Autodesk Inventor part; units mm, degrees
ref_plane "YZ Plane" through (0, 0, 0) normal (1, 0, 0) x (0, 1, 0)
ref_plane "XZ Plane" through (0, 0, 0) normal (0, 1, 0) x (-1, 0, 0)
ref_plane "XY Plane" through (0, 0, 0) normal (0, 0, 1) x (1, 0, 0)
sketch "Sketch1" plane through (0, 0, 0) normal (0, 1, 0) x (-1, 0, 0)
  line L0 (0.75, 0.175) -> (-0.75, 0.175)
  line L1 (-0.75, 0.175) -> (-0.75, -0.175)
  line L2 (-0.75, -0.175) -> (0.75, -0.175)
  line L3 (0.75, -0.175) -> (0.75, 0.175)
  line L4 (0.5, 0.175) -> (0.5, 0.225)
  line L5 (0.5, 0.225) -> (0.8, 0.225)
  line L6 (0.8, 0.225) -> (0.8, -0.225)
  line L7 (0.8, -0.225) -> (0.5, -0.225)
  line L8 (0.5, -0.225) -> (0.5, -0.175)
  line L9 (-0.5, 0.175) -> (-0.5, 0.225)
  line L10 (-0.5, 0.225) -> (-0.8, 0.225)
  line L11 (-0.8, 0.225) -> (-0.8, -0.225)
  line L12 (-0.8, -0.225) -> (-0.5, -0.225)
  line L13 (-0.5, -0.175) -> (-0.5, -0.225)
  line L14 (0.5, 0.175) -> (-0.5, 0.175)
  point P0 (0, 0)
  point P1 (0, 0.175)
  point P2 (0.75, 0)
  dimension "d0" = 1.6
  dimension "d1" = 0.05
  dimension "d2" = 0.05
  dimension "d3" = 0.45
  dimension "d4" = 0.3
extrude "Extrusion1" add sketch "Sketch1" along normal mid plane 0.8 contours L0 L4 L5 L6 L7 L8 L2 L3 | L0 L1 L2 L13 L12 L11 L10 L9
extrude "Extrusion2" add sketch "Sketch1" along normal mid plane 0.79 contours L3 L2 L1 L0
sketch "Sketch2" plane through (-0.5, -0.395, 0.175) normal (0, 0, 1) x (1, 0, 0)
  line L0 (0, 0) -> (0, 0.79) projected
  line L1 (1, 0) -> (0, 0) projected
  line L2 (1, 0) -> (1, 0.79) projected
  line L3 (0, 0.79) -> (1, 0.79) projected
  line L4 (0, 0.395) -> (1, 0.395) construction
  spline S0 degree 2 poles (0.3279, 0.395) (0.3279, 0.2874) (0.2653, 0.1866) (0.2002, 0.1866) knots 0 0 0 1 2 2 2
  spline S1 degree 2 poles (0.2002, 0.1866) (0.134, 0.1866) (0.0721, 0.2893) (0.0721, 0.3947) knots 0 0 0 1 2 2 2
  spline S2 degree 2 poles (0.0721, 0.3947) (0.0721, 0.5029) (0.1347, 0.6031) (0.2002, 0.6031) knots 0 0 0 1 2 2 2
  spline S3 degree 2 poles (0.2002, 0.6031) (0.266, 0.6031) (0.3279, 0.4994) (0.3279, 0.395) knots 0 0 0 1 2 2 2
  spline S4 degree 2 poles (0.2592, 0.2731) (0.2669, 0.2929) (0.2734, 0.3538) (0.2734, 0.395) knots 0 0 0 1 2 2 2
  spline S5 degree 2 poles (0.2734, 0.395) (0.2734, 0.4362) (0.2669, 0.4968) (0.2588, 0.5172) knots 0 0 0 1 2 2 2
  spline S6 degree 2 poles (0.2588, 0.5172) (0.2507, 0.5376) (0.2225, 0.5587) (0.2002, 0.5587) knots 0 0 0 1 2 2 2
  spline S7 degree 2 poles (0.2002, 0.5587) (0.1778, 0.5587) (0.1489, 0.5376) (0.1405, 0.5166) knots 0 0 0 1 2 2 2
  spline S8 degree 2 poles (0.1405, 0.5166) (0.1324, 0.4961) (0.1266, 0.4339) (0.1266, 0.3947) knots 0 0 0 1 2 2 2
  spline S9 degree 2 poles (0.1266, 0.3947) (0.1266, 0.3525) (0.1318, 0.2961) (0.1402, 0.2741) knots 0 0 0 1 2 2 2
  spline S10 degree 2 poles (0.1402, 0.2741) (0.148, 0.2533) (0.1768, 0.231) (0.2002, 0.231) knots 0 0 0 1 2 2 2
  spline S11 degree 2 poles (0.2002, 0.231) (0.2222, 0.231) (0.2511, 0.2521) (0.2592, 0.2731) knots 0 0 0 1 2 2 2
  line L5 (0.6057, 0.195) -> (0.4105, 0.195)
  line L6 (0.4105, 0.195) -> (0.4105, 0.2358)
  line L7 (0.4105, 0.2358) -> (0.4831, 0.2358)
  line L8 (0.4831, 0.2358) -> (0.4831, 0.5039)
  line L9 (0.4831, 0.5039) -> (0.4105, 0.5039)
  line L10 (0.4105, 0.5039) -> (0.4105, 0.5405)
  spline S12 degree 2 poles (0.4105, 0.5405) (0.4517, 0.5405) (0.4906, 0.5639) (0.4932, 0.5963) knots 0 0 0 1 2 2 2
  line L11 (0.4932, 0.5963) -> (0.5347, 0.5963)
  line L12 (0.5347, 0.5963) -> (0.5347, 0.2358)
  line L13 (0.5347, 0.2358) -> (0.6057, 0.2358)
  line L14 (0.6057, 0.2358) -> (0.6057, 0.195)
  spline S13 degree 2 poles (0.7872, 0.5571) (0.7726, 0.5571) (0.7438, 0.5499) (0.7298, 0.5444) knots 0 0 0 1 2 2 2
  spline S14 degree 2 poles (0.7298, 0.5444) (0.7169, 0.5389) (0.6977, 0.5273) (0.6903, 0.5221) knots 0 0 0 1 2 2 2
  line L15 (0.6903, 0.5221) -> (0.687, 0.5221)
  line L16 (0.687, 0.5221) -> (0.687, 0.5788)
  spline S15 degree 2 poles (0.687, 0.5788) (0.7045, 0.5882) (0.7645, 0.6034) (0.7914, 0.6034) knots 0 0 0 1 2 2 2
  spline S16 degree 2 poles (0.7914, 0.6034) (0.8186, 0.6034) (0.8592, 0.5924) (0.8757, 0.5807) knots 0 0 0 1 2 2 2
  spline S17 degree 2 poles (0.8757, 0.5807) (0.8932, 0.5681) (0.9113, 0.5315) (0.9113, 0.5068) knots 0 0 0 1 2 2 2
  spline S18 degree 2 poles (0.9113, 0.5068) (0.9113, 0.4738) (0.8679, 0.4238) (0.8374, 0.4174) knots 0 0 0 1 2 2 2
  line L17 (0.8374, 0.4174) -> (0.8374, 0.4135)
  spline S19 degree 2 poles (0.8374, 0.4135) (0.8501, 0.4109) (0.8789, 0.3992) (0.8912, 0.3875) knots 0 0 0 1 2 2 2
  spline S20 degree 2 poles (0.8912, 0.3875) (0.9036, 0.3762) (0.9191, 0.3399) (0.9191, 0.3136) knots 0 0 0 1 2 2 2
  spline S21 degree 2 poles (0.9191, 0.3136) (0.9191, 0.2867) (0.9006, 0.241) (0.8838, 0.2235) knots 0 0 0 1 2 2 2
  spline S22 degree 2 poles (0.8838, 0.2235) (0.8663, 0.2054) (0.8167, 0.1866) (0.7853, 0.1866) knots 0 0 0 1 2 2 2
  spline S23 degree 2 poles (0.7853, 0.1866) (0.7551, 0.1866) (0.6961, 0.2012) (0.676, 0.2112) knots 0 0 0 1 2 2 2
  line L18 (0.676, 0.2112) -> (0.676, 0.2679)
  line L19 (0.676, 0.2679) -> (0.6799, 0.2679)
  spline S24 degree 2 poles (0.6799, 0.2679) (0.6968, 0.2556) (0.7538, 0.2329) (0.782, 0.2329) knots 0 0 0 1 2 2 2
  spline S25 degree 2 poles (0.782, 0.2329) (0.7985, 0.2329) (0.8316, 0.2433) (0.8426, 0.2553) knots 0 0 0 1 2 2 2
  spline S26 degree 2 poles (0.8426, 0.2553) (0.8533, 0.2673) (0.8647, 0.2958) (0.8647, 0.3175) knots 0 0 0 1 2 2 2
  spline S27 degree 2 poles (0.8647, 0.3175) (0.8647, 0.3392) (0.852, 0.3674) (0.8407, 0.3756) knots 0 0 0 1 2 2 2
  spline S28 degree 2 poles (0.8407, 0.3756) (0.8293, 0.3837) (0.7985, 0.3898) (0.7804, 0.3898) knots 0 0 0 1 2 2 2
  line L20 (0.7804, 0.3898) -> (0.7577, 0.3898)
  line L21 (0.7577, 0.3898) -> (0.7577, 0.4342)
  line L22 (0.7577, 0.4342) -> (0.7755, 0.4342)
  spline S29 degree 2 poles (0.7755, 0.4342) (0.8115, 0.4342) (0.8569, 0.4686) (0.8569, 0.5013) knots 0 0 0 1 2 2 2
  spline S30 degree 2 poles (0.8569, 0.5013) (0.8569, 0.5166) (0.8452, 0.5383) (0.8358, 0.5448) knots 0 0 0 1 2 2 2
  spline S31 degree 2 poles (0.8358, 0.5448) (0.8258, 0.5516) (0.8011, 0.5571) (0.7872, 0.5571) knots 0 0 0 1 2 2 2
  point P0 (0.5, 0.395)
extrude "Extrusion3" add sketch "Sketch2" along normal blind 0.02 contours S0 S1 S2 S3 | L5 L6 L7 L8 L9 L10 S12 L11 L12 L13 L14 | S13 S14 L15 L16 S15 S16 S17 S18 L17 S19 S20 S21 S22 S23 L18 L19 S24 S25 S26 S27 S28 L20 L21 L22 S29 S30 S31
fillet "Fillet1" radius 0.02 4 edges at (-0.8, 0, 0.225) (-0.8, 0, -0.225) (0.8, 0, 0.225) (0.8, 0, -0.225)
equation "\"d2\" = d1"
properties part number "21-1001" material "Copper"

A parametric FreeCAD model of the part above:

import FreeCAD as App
import Part
import Sketcher
from FreeCAD import Vector


def edges_at(feature, points):
    """Names of the edges that pass closest to the given points."""
    edges = feature.Shape.Edges
    near = lambda p: min(range(len(edges)), key=lambda i: edges[i].distToShape(Part.Vertex(*p))[0])
    return sorted({f"Edge{near(p) + 1}" for p in points})

doc = App.newDocument("Part")
params = doc.addObject("Spreadsheet::Sheet", "Params")
for row, (alias, value) in enumerate([
    ("sketch1_width", "0.3 mm"),
    ("sketch1_height", "0.05 mm"),
    ("sketch1_height2", "0.45 mm"),
    ("pad1_length", "0.8 mm"),
    ("sketch2_width", "1.5 mm"),
    ("sketch2_height", "0.35 mm"),
    ("pad2_length", "0.79 mm"),
    ("pad3_length", "0.02 mm"),
    ("fillet_radius", "0.02 mm"),
], start=1):
    params.set(f"A{row}", alias)
    params.set(f"B{row}", "=" + value)
    params.setAlias(f"B{row}", alias)

body = doc.addObject("PartDesign::Body", "Body")
body.AllowCompound = True

# Sketch on XZ plane
sketch1 = doc.addObject("Sketcher::SketchObject", "Sketch")
body.addObject(sketch1)
sketch1.AttachmentSupport = (doc.XZ_Plane, [""])
sketch1.MapMode = "FlatFace"
sketch1.addGeometry(Part.LineSegment(Vector(-0.5, 0.17, 0), Vector(-0.75, 0.17, 0)), False)
sketch1.addGeometry(Part.LineSegment(Vector(-0.75, 0.17, 0), Vector(-0.75, -0.17, 0)), False)
sketch1.addGeometry(Part.LineSegment(Vector(-0.75, -0.17, 0), Vector(-0.5, -0.17, 0)), False)
sketch1.addGeometry(Part.LineSegment(Vector(-0.5, -0.17, 0), Vector(-0.5, -0.23, 0)), False)
sketch1.addGeometry(Part.LineSegment(Vector(-0.5, -0.23, 0), Vector(-0.8, -0.23, 0)), False)
sketch1.addGeometry(Part.LineSegment(Vector(-0.8, -0.23, 0), Vector(-0.8, 0.23, 0)), False)
sketch1.addGeometry(Part.LineSegment(Vector(-0.8, 0.23, 0), Vector(-0.5, 0.23, 0)), False)
sketch1.addGeometry(Part.LineSegment(Vector(-0.5, 0.23, 0), Vector(-0.5, 0.17, 0)), False)
sketch1.addGeometry(Part.LineSegment(Vector(0.75, 0.17, 0), Vector(0.5, 0.17, 0)), False)
sketch1.addGeometry(Part.LineSegment(Vector(0.5, 0.17, 0), Vector(0.5, 0.23, 0)), False)
sketch1.addGeometry(Part.LineSegment(Vector(0.5, 0.23, 0), Vector(0.8, 0.23, 0)), False)
sketch1.addGeometry(Part.LineSegment(Vector(0.8, 0.23, 0), Vector(0.8, -0.23, 0)), False)
sketch1.addGeometry(Part.LineSegment(Vector(0.8, -0.23, 0), Vector(0.5, -0.23, 0)), False)
sketch1.addGeometry(Part.LineSegment(Vector(0.5, -0.23, 0), Vector(0.5, -0.17, 0)), False)
sketch1.addGeometry(Part.LineSegment(Vector(0.5, -0.17, 0), Vector(0.75, -0.17, 0)), False)
sketch1.addGeometry(Part.LineSegment(Vector(0.75, -0.17, 0), Vector(0.75, 0.17, 0)), False)
sketch1.addConstraint(Sketcher.Constraint("Coincident", 0, 2, 1, 1))
sketch1.addConstraint(Sketcher.Constraint("Coincident", 1, 2, 2, 1))
sketch1.addConstraint(Sketcher.Constraint("Coincident", 2, 2, 3, 1))
sketch1.addConstraint(Sketcher.Constraint("Coincident", 3, 2, 4, 1))
sketch1.addConstraint(Sketcher.Constraint("Coincident", 4, 2, 5, 1))
sketch1.addConstraint(Sketcher.Constraint("Coincident", 5, 2, 6, 1))
sketch1.addConstraint(Sketcher.Constraint("Coincident", 6, 2, 7, 1))
sketch1.addConstraint(Sketcher.Constraint("Coincident", 7, 2, 0, 1))
sketch1.addConstraint(Sketcher.Constraint("Coincident", 8, 2, 9, 1))
sketch1.addConstraint(Sketcher.Constraint("Coincident", 9, 2, 10, 1))
sketch1.addConstraint(Sketcher.Constraint("Coincident", 10, 2, 11, 1))
sketch1.addConstraint(Sketcher.Constraint("Coincident", 11, 2, 12, 1))
sketch1.addConstraint(Sketcher.Constraint("Coincident", 12, 2, 13, 1))
sketch1.addConstraint(Sketcher.Constraint("Coincident", 13, 2, 14, 1))
sketch1.addConstraint(Sketcher.Constraint("Coincident", 14, 2, 15, 1))
sketch1.addConstraint(Sketcher.Constraint("Coincident", 15, 2, 8, 1))
sketch1.addConstraint(Sketcher.Constraint("Horizontal", 0))
sketch1.addConstraint(Sketcher.Constraint("Vertical", 1))
sketch1.addConstraint(Sketcher.Constraint("Horizontal", 2))
sketch1.addConstraint(Sketcher.Constraint("Vertical", 3))
sketch1.addConstraint(Sketcher.Constraint("Horizontal", 4))
sketch1.addConstraint(Sketcher.Constraint("Vertical", 5))
sketch1.addConstraint(Sketcher.Constraint("Horizontal", 6))
sketch1.addConstraint(Sketcher.Constraint("Vertical", 7))
sketch1.addConstraint(Sketcher.Constraint("Horizontal", 8))
sketch1.addConstraint(Sketcher.Constraint("Vertical", 9))
sketch1.addConstraint(Sketcher.Constraint("Horizontal", 10))
sketch1.addConstraint(Sketcher.Constraint("Vertical", 11))
sketch1.addConstraint(Sketcher.Constraint("Horizontal", 12))
sketch1.addConstraint(Sketcher.Constraint("Vertical", 13))
sketch1.addConstraint(Sketcher.Constraint("Horizontal", 14))
sketch1.addConstraint(Sketcher.Constraint("Vertical", 15))
sketch1.addConstraint(Sketcher.Constraint("Symmetric", 2, 2, 8, 2, -1, 1))
sketch1.addConstraint(Sketcher.Constraint("Symmetric", 4, 2, 10, 2, -1, 1))
sketch1.addConstraint(Sketcher.Constraint("Symmetric", 6, 2, 12, 2, -1, 1))
sketch1.addConstraint(Sketcher.Constraint("Symmetric", 0, 2, 14, 2, -1, 1))
sketch1.addConstraint(Sketcher.Constraint("Symmetric", 7, 2, 8, 2, -2))
sketch1.addConstraint(Sketcher.Constraint("Horizontal", 6, 2, 9, 2))
sketch1.addConstraint(Sketcher.Constraint("DistanceX", 4, 2, 4, 1, 0.3))
sketch1.addConstraint(Sketcher.Constraint("DistanceY", 3, 2, 3, 1, 0.05))
sketch1.addConstraint(Sketcher.Constraint("DistanceY", 5, 1, 5, 2, 0.45))
sketch1.addConstraint(Sketcher.Constraint("DistanceX", 4, 2, 1, 2, 0.05))
sketch1.addConstraint(Sketcher.Constraint("DistanceX", 7, 2, 8, 2, 1.0))
sketch1.setExpression("Constraints[38]", "Params.sketch1_width")
sketch1.setExpression("Constraints[39]", "Params.sketch1_height")
sketch1.setExpression("Constraints[40]", "Params.sketch1_height2")
pad1 = doc.addObject("PartDesign::Pad", "Pad")
body.addObject(pad1)
pad1.Profile = sketch1
pad1.setExpression("Length", "Params.pad1_length")
pad1.Midplane = True

# Sketch on XZ plane
sketch2 = doc.addObject("Sketcher::SketchObject", "Sketch001")
body.addObject(sketch2)
sketch2.AttachmentSupport = (doc.XZ_Plane, [""])
sketch2.MapMode = "FlatFace"
sketch2.addGeometry(Part.LineSegment(Vector(-0.75, -0.17, 0), Vector(-0.75, 0.17, 0)), False)
sketch2.addGeometry(Part.LineSegment(Vector(-0.75, 0.17, 0), Vector(0.75, 0.17, 0)), False)
sketch2.addGeometry(Part.LineSegment(Vector(0.75, 0.17, 0), Vector(0.75, -0.17, 0)), False)
sketch2.addGeometry(Part.LineSegment(Vector(0.75, -0.17, 0), Vector(-0.75, -0.17, 0)), False)
sketch2.addConstraint(Sketcher.Constraint("Coincident", 0, 2, 1, 1))
sketch2.addConstraint(Sketcher.Constraint("Coincident", 1, 2, 2, 1))
sketch2.addConstraint(Sketcher.Constraint("Coincident", 2, 2, 3, 1))
sketch2.addConstraint(Sketcher.Constraint("Coincident", 3, 2, 0, 1))
sketch2.addConstraint(Sketcher.Constraint("Vertical", 0))
sketch2.addConstraint(Sketcher.Constraint("Horizontal", 1))
sketch2.addConstraint(Sketcher.Constraint("Vertical", 2))
sketch2.addConstraint(Sketcher.Constraint("Horizontal", 3))
sketch2.addConstraint(Sketcher.Constraint("Symmetric", 0, 2, 2, 2, -1, 1))
sketch2.addConstraint(Sketcher.Constraint("DistanceX", 1, 1, 1, 2, 1.5))
sketch2.addConstraint(Sketcher.Constraint("DistanceY", 0, 1, 0, 2, 0.35))
sketch2.setExpression("Constraints[9]", "Params.sketch2_width")
sketch2.setExpression("Constraints[10]", "Params.sketch2_height")
pad2 = doc.addObject("PartDesign::Pad", "Pad001")
body.addObject(pad2)
pad2.Profile = sketch2
pad2.setExpression("Length", "Params.pad2_length")
pad2.Midplane = True

# Sketch on XY plane
sketch3 = doc.addObject("Sketcher::SketchObject", "Sketch002")
body.addObject(sketch3)
sketch3.AttachmentSupport = (doc.XY_Plane, [""])
sketch3.MapMode = "FlatFace"
sketch3.AttachmentOffset = App.Placement(Vector(0, 0, 0.175), App.Rotation())
sketch3.addGeometry(Part.BSplineCurve([Vector(-0.1721, 0, 0), Vector(-0.1721, -0.1076, 0), Vector(-0.2347, -0.2084, 0), Vector(-0.2998, -0.2084, 0)], [3, 1, 3], [0, 1, 2], False, 2, [1, 1, 1, 1], False), False)
sketch3.addGeometry(Part.BSplineCurve([Vector(-0.2998, 0.2081, 0), Vector(-0.234, 0.2081, 0), Vector(-0.1721, 0.1044, 0), Vector(-0.1721, 0, 0)], [3, 1, 3], [0, 1, 2], False, 2, [1, 1, 1, 1], False), False)
sketch3.addGeometry(Part.BSplineCurve([Vector(-0.4279, -0.0003, 0), Vector(-0.4279, 0.1079, 0), Vector(-0.3653, 0.2081, 0), Vector(-0.2998, 0.2081, 0)], [3, 1, 3], [0, 1, 2], False, 2, [1, 1, 1, 1], False), False)
sketch3.addGeometry(Part.BSplineCurve([Vector(-0.2998, -0.2084, 0), Vector(-0.366, -0.2084, 0), Vector(-0.4279, -0.1057, 0), Vector(-0.4279, -0.0003, 0)], [3, 1, 3], [0, 1, 2], False, 2, [1, 1, 1, 1], False), False)
sketch3.addGeometry(Part.BSplineCurve([Vector(-0.2408, -0.1219, 0), Vector(-0.2331, -0.1021, 0), Vector(-0.2266, -0.0412, 0), Vector(-0.2266, 0, 0)], [3, 1, 3], [0, 1, 2], False, 2, [1, 1, 1, 1], False), False)
sketch3.addGeometry(Part.BSplineCurve([Vector(-0.2998, -0.164, 0), Vector(-0.2778, -0.164, 0), Vector(-0.2489, -0.1429, 0), Vector(-0.2408, -0.1219, 0)], [3, 1, 3], [0, 1, 2], False, 2, [1, 1, 1, 1], False), False)
sketch3.addGeometry(Part.BSplineCurve([Vector(-0.3598, -0.1209, 0), Vector(-0.352, -0.1417, 0), Vector(-0.3232, -0.164, 0), Vector(-0.2998, -0.164, 0)], [3, 1, 3], [0, 1, 2], False, 2, [1, 1, 1, 1], False), False)
sketch3.addGeometry(Part.BSplineCurve([Vector(-0.3734, -0.0003, 0), Vector(-0.3734, -0.0425, 0), Vector(-0.3682, -0.0989, 0), Vector(-0.3598, -0.1209, 0)], [3, 1, 3], [0, 1, 2], False, 2, [1, 1, 1, 1], False), False)
sketch3.addGeometry(Part.BSplineCurve([Vector(-0.3595, 0.1216, 0), Vector(-0.3676, 0.1011, 0), Vector(-0.3734, 0.0389, 0), Vector(-0.3734, -0.0003, 0)], [3, 1, 3], [0, 1, 2], False, 2, [1, 1, 1, 1], False), False)
sketch3.addGeometry(Part.BSplineCurve([Vector(-0.2998, 0.1637, 0), Vector(-0.3222, 0.1637, 0), Vector(-0.3511, 0.1426, 0), Vector(-0.3595, 0.1216, 0)], [3, 1, 3], [0, 1, 2], False, 2, [1, 1, 1, 1], False), False)
sketch3.addGeometry(Part.BSplineCurve([Vector(-0.2412, 0.1222, 0), Vector(-0.2493, 0.1426, 0), Vector(-0.2775, 0.1637, 0), Vector(-0.2998, 0.1637, 0)], [3, 1, 3], [0, 1, 2], False, 2, [1, 1, 1, 1], False), False)
sketch3.addGeometry(Part.BSplineCurve([Vector(-0.2266, 0, 0), Vector(-0.2266, 0.0412, 0), Vector(-0.2331, 0.1018, 0), Vector(-0.2412, 0.1222, 0)], [3, 1, 3], [0, 1, 2], False, 2, [1, 1, 1, 1], False), False)
sketch3.addGeometry(Part.LineSegment(Vector(-0.0895, -0.2, 0), Vector(0.1057, -0.2, 0)), False)
sketch3.addGeometry(Part.LineSegment(Vector(0.1057, -0.2, 0), Vector(0.1057, -0.1592, 0)), False)
sketch3.addGeometry(Part.LineSegment(Vector(0.1057, -0.1592, 0), Vector(0.0347, -0.1592, 0)), False)
sketch3.addGeometry(Part.LineSegment(Vector(0.0347, -0.1592, 0), Vector(0.0347, 0.2013, 0)), False)
sketch3.addGeometry(Part.LineSegment(Vector(0.0347, 0.2013, 0), Vector(-0.0068, 0.2013, 0)), False)
sketch3.addGeometry(Part.BSplineCurve([Vector(-0.0895, 0.1455, 0), Vector(-0.0483, 0.1455, 0), Vector(-0.0094, 0.1689, 0), Vector(-0.0068, 0.2013, 0)], [3, 1, 3], [0, 1, 2], False, 2, [1, 1, 1, 1], False), False)
sketch3.addGeometry(Part.LineSegment(Vector(-0.0895, 0.1455, 0), Vector(-0.0895, 0.1089, 0)), False)
sketch3.addGeometry(Part.LineSegment(Vector(-0.0895, 0.1089, 0), Vector(-0.0169, 0.1089, 0)), False)
sketch3.addGeometry(Part.LineSegment(Vector(-0.0169, 0.1089, 0), Vector(-0.0169, -0.1592, 0)), False)
sketch3.addGeometry(Part.LineSegment(Vector(-0.0169, -0.1592, 0), Vector(-0.0895, -0.1592, 0)), False)
sketch3.addGeometry(Part.LineSegment(Vector(-0.0895, -0.1592, 0), Vector(-0.0895, -0.2, 0)), False)
sketch3.addGeometry(Part.BSplineCurve([Vector(0.2872, 0.1621, 0), Vector(0.2726, 0.1621, 0), Vector(0.2438, 0.1549, 0), Vector(0.2298, 0.1494, 0)], [3, 1, 3], [0, 1, 2], False, 2, [1, 1, 1, 1], False), False)
sketch3.addGeometry(Part.BSplineCurve([Vector(0.3358, 0.1498, 0), Vector(0.3258, 0.1566, 0), Vector(0.3011, 0.1621, 0), Vector(0.2872, 0.1621, 0)], [3, 1, 3], [0, 1, 2], False, 2, [1, 1, 1, 1], False), False)
sketch3.addGeometry(Part.BSplineCurve([Vector(0.3569, 0.1063, 0), Vector(0.3569, 0.1216, 0), Vector(0.3452, 0.1433, 0), Vector(0.3358, 0.1498, 0)], [3, 1, 3], [0, 1, 2], False, 2, [1, 1, 1, 1], False), False)
sketch3.addGeometry(Part.BSplineCurve([Vector(0.2755, 0.0392, 0), Vector(0.3115, 0.0392, 0), Vector(0.3569, 0.0736, 0), Vector(0.3569, 0.1063, 0)], [3, 1, 3], [0, 1, 2], False, 2, [1, 1, 1, 1], False), False)
sketch3.addGeometry(Part.LineSegment(Vector(0.2755, 0.0392, 0), Vector(0.2577, 0.0392, 0)), False)
sketch3.addGeometry(Part.LineSegment(Vector(0.2577, 0.0392, 0), Vector(0.2577, -0.0052, 0)), False)
sketch3.addGeometry(Part.LineSegment(Vector(0.2577, -0.0052, 0), Vector(0.2804, -0.0052, 0)), False)
sketch3.addGeometry(Part.BSplineCurve([Vector(0.3407, -0.0194, 0), Vector(0.3293, -0.0113, 0), Vector(0.2985, -0.0052, 0), Vector(0.2804, -0.0052, 0)], [3, 1, 3], [0, 1, 2], False, 2, [1, 1, 1, 1], False), False)
sketch3.addGeometry(Part.BSplineCurve([Vector(0.3647, -0.0775, 0), Vector(0.3647, -0.0558, 0), Vector(0.352, -0.0276, 0), Vector(0.3407, -0.0194, 0)], [3, 1, 3], [0, 1, 2], False, 2, [1, 1, 1, 1], False), False)
sketch3.addGeometry(Part.BSplineCurve([Vector(0.3426, -0.1397, 0), Vector(0.3533, -0.1277, 0), Vector(0.3647, -0.0992, 0), Vector(0.3647, -0.0775, 0)], [3, 1, 3], [0, 1, 2], False, 2, [1, 1, 1, 1], False), False)
sketch3.addGeometry(Part.BSplineCurve([Vector(0.282, -0.1621, 0), Vector(0.2985, -0.1621, 0), Vector(0.3316, -0.1517, 0), Vector(0.3426, -0.1397, 0)], [3, 1, 3], [0, 1, 2], False, 2, [1, 1, 1, 1], False), False)
sketch3.addGeometry(Part.BSplineCurve([Vector(0.1799, -0.1271, 0), Vector(0.1968, -0.1394, 0), Vector(0.2538, -0.1621, 0), Vector(0.282, -0.1621, 0)], [3, 1, 3], [0, 1, 2], False, 2, [1, 1, 1, 1], False), False)
sketch3.addGeometry(Part.LineSegment(Vector(0.1799, -0.1271, 0), Vector(0.176, -0.1271, 0)), False)
sketch3.addGeometry(Part.LineSegment(Vector(0.176, -0.1271, 0), Vector(0.176, -0.1838, 0)), False)
sketch3.addGeometry(Part.BSplineCurve([Vector(0.2853, -0.2084, 0), Vector(0.2551, -0.2084, 0), Vector(0.1961, -0.1938, 0), Vector(0.176, -0.1838, 0)], [3, 1, 3], [0, 1, 2], False, 2, [1, 1, 1, 1], False), False)
sketch3.addGeometry(Part.BSplineCurve([Vector(0.3838, -0.1715, 0), Vector(0.3663, -0.1896, 0), Vector(0.3167, -0.2084, 0), Vector(0.2853, -0.2084, 0)], [3, 1, 3], [0, 1, 2], False, 2, [1, 1, 1, 1], False), False)
sketch3.addGeometry(Part.BSplineCurve([Vector(0.4191, -0.0814, 0), Vector(0.4191, -0.1083, 0), Vector(0.4006, -0.154, 0), Vector(0.3838, -0.1715, 0)], [3, 1, 3], [0, 1, 2], False, 2, [1, 1, 1, 1], False), False)
sketch3.addGeometry(Part.BSplineCurve([Vector(0.3912, -0.0075, 0), Vector(0.4036, -0.0188, 0), Vector(0.4191, -0.0551, 0), Vector(0.4191, -0.0814, 0)], [3, 1, 3], [0, 1, 2], False, 2, [1, 1, 1, 1], False), False)
sketch3.addGeometry(Part.BSplineCurve([Vector(0.3374, 0.0185, 0), Vector(0.3501, 0.0159, 0), Vector(0.3789, 0.0042, 0), Vector(0.3912, -0.0075, 0)], [3, 1, 3], [0, 1, 2], False, 2, [1, 1, 1, 1], False), False)
sketch3.addGeometry(Part.LineSegment(Vector(0.3374, 0.0185, 0), Vector(0.3374, 0.0224, 0)), False)
sketch3.addGeometry(Part.BSplineCurve([Vector(0.4113, 0.1118, 0), Vector(0.4113, 0.0788, 0), Vector(0.3679, 0.0288, 0), Vector(0.3374, 0.0224, 0)], [3, 1, 3], [0, 1, 2], False, 2, [1, 1, 1, 1], False), False)
sketch3.addGeometry(Part.BSplineCurve([Vector(0.3757, 0.1857, 0), Vector(0.3932, 0.1731, 0), Vector(0.4113, 0.1365, 0), Vector(0.4113, 0.1118, 0)], [3, 1, 3], [0, 1, 2], False, 2, [1, 1, 1, 1], False), False)
sketch3.addGeometry(Part.BSplineCurve([Vector(0.2914, 0.2084, 0), Vector(0.3186, 0.2084, 0), Vector(0.3592, 0.1974, 0), Vector(0.3757, 0.1857, 0)], [3, 1, 3], [0, 1, 2], False, 2, [1, 1, 1, 1], False), False)
sketch3.addGeometry(Part.BSplineCurve([Vector(0.187, 0.1838, 0), Vector(0.2045, 0.1932, 0), Vector(0.2645, 0.2084, 0), Vector(0.2914, 0.2084, 0)], [3, 1, 3], [0, 1, 2], False, 2, [1, 1, 1, 1], False), False)
sketch3.addGeometry(Part.LineSegment(Vector(0.187, 0.1838, 0), Vector(0.187, 0.1271, 0)), False)
sketch3.addGeometry(Part.LineSegment(Vector(0.187, 0.1271, 0), Vector(0.1903, 0.1271, 0)), False)
sketch3.addGeometry(Part.BSplineCurve([Vector(0.2298, 0.1494, 0), Vector(0.2169, 0.1439, 0), Vector(0.1977, 0.1323, 0), Vector(0.1903, 0.1271, 0)], [3, 1, 3], [0, 1, 2], False, 2, [1, 1, 1, 1], False), False)
sketch3.addConstraint(Sketcher.Constraint("Block", 0))
sketch3.addConstraint(Sketcher.Constraint("Block", 1))
sketch3.addConstraint(Sketcher.Constraint("Block", 2))
sketch3.addConstraint(Sketcher.Constraint("Block", 3))
sketch3.addConstraint(Sketcher.Constraint("Block", 4))
sketch3.addConstraint(Sketcher.Constraint("Block", 5))
sketch3.addConstraint(Sketcher.Constraint("Block", 6))
sketch3.addConstraint(Sketcher.Constraint("Block", 7))
sketch3.addConstraint(Sketcher.Constraint("Block", 8))
sketch3.addConstraint(Sketcher.Constraint("Block", 9))
sketch3.addConstraint(Sketcher.Constraint("Block", 10))
sketch3.addConstraint(Sketcher.Constraint("Block", 11))
sketch3.addConstraint(Sketcher.Constraint("Block", 17))
sketch3.addConstraint(Sketcher.Constraint("Block", 23))
sketch3.addConstraint(Sketcher.Constraint("Block", 24))
sketch3.addConstraint(Sketcher.Constraint("Block", 25))
sketch3.addConstraint(Sketcher.Constraint("Block", 26))
sketch3.addConstraint(Sketcher.Constraint("Block", 30))
sketch3.addConstraint(Sketcher.Constraint("Block", 31))
sketch3.addConstraint(Sketcher.Constraint("Block", 32))
sketch3.addConstraint(Sketcher.Constraint("Block", 33))
sketch3.addConstraint(Sketcher.Constraint("Block", 34))
sketch3.addConstraint(Sketcher.Constraint("Block", 37))
sketch3.addConstraint(Sketcher.Constraint("Block", 38))
sketch3.addConstraint(Sketcher.Constraint("Block", 39))
sketch3.addConstraint(Sketcher.Constraint("Block", 40))
sketch3.addConstraint(Sketcher.Constraint("Block", 41))
sketch3.addConstraint(Sketcher.Constraint("Block", 43))
sketch3.addConstraint(Sketcher.Constraint("Block", 44))
sketch3.addConstraint(Sketcher.Constraint("Block", 45))
sketch3.addConstraint(Sketcher.Constraint("Block", 46))
sketch3.addConstraint(Sketcher.Constraint("Block", 49))
sketch3.addConstraint(Sketcher.Constraint("Coincident", 12, 2, 13, 1))
sketch3.addConstraint(Sketcher.Constraint("Coincident", 13, 2, 14, 1))
sketch3.addConstraint(Sketcher.Constraint("Coincident", 14, 2, 15, 1))
sketch3.addConstraint(Sketcher.Constraint("Coincident", 15, 2, 16, 1))
sketch3.addConstraint(Sketcher.Constraint("Coincident", 16, 2, 17, 2))
sketch3.addConstraint(Sketcher.Constraint("Coincident", 17, 1, 18, 1))
sketch3.addConstraint(Sketcher.Constraint("Coincident", 18, 2, 19, 1))
sketch3.addConstraint(Sketcher.Constraint("Coincident", 19, 2, 20, 1))
sketch3.addConstraint(Sketcher.Constraint("Coincident", 20, 2, 21, 1))
sketch3.addConstraint(Sketcher.Constraint("Coincident", 21, 2, 22, 1))
sketch3.addConstraint(Sketcher.Constraint("Coincident", 22, 2, 12, 1))
sketch3.addConstraint(Sketcher.Constraint("Coincident", 26, 1, 27, 1))
sketch3.addConstraint(Sketcher.Constraint("Coincident", 27, 2, 28, 1))
sketch3.addConstraint(Sketcher.Constraint("Coincident", 28, 2, 29, 1))
sketch3.addConstraint(Sketcher.Constraint("Coincident", 29, 2, 30, 2))
sketch3.addConstraint(Sketcher.Constraint("Coincident", 34, 1, 35, 1))
sketch3.addConstraint(Sketcher.Constraint("Coincident", 35, 2, 36, 1))
sketch3.addConstraint(Sketcher.Constraint("Coincident", 36, 2, 37, 2))
sketch3.addConstraint(Sketcher.Constraint("Coincident", 41, 1, 42, 1))
sketch3.addConstraint(Sketcher.Constraint("Coincident", 42, 2, 43, 2))
sketch3.addConstraint(Sketcher.Constraint("Coincident", 46, 1, 47, 1))
sketch3.addConstraint(Sketcher.Constraint("Coincident", 47, 2, 48, 1))
sketch3.addConstraint(Sketcher.Constraint("Coincident", 48, 2, 49, 2))
sketch3.addConstraint(Sketcher.Constraint("Horizontal", 12))
sketch3.addConstraint(Sketcher.Constraint("Vertical", 13))
sketch3.addConstraint(Sketcher.Constraint("Horizontal", 14))
sketch3.addConstraint(Sketcher.Constraint("Vertical", 15))
sketch3.addConstraint(Sketcher.Constraint("Horizontal", 16))
sketch3.addConstraint(Sketcher.Constraint("Vertical", 18))
sketch3.addConstraint(Sketcher.Constraint("Horizontal", 19))
sketch3.addConstraint(Sketcher.Constraint("Vertical", 20))
sketch3.addConstraint(Sketcher.Constraint("Horizontal", 21))
sketch3.addConstraint(Sketcher.Constraint("Vertical", 22))
sketch3.addConstraint(Sketcher.Constraint("Horizontal", 27))
sketch3.addConstraint(Sketcher.Constraint("Vertical", 28))
sketch3.addConstraint(Sketcher.Constraint("Horizontal", 29))
sketch3.addConstraint(Sketcher.Constraint("Horizontal", 35))
sketch3.addConstraint(Sketcher.Constraint("Vertical", 36))
sketch3.addConstraint(Sketcher.Constraint("Vertical", 47))
sketch3.addConstraint(Sketcher.Constraint("Horizontal", 48))
sketch3.addConstraint(Sketcher.Constraint("Horizontal", 14, 2, 20, 2))
sketch3.addConstraint(Sketcher.Constraint("Vertical", 18, 2, 21, 2))
sketch3.addConstraint(Sketcher.Constraint("DistanceY", 12, 2, -1, 1, 0.2))
sketch3.addConstraint(Sketcher.Constraint("DistanceX", 14, 2, 14, 1, 0.071))
sketch3.addConstraint(Sketcher.Constraint("DistanceY", 20, 2, 20, 1, 0.268))
sketch3.addConstraint(Sketcher.Constraint("DistanceX", 19, 2, 16, 2, 0.01))
sketch3.addConstraint(Sketcher.Constraint("DistanceX", 12, 1, 12, 2, 0.1952))
sketch3.addConstraint(Sketcher.Constraint("DistanceX", 27, 2, 27, 1, 0.0178))
sketch3.addConstraint(Sketcher.Constraint("DistanceY", 13, 1, 13, 2, 0.0408))
pad3 = doc.addObject("PartDesign::Pad", "Pad002")
body.addObject(pad3)
pad3.Profile = sketch3
pad3.setExpression("Length", "Params.pad3_length")
doc.recompute()

fillet = doc.addObject("PartDesign::Fillet", "Fillet")
body.addObject(fillet)
fillet.Base = (pad3, edges_at(pad3, [
    (-0.8, 0, 0.225),
    (-0.8, 0, -0.225),
    (0.8, 0, 0.225),
    (0.8, 0, -0.225),
]))
fillet.setExpression("Radius", "Params.fillet_radius")

doc.recompute()
